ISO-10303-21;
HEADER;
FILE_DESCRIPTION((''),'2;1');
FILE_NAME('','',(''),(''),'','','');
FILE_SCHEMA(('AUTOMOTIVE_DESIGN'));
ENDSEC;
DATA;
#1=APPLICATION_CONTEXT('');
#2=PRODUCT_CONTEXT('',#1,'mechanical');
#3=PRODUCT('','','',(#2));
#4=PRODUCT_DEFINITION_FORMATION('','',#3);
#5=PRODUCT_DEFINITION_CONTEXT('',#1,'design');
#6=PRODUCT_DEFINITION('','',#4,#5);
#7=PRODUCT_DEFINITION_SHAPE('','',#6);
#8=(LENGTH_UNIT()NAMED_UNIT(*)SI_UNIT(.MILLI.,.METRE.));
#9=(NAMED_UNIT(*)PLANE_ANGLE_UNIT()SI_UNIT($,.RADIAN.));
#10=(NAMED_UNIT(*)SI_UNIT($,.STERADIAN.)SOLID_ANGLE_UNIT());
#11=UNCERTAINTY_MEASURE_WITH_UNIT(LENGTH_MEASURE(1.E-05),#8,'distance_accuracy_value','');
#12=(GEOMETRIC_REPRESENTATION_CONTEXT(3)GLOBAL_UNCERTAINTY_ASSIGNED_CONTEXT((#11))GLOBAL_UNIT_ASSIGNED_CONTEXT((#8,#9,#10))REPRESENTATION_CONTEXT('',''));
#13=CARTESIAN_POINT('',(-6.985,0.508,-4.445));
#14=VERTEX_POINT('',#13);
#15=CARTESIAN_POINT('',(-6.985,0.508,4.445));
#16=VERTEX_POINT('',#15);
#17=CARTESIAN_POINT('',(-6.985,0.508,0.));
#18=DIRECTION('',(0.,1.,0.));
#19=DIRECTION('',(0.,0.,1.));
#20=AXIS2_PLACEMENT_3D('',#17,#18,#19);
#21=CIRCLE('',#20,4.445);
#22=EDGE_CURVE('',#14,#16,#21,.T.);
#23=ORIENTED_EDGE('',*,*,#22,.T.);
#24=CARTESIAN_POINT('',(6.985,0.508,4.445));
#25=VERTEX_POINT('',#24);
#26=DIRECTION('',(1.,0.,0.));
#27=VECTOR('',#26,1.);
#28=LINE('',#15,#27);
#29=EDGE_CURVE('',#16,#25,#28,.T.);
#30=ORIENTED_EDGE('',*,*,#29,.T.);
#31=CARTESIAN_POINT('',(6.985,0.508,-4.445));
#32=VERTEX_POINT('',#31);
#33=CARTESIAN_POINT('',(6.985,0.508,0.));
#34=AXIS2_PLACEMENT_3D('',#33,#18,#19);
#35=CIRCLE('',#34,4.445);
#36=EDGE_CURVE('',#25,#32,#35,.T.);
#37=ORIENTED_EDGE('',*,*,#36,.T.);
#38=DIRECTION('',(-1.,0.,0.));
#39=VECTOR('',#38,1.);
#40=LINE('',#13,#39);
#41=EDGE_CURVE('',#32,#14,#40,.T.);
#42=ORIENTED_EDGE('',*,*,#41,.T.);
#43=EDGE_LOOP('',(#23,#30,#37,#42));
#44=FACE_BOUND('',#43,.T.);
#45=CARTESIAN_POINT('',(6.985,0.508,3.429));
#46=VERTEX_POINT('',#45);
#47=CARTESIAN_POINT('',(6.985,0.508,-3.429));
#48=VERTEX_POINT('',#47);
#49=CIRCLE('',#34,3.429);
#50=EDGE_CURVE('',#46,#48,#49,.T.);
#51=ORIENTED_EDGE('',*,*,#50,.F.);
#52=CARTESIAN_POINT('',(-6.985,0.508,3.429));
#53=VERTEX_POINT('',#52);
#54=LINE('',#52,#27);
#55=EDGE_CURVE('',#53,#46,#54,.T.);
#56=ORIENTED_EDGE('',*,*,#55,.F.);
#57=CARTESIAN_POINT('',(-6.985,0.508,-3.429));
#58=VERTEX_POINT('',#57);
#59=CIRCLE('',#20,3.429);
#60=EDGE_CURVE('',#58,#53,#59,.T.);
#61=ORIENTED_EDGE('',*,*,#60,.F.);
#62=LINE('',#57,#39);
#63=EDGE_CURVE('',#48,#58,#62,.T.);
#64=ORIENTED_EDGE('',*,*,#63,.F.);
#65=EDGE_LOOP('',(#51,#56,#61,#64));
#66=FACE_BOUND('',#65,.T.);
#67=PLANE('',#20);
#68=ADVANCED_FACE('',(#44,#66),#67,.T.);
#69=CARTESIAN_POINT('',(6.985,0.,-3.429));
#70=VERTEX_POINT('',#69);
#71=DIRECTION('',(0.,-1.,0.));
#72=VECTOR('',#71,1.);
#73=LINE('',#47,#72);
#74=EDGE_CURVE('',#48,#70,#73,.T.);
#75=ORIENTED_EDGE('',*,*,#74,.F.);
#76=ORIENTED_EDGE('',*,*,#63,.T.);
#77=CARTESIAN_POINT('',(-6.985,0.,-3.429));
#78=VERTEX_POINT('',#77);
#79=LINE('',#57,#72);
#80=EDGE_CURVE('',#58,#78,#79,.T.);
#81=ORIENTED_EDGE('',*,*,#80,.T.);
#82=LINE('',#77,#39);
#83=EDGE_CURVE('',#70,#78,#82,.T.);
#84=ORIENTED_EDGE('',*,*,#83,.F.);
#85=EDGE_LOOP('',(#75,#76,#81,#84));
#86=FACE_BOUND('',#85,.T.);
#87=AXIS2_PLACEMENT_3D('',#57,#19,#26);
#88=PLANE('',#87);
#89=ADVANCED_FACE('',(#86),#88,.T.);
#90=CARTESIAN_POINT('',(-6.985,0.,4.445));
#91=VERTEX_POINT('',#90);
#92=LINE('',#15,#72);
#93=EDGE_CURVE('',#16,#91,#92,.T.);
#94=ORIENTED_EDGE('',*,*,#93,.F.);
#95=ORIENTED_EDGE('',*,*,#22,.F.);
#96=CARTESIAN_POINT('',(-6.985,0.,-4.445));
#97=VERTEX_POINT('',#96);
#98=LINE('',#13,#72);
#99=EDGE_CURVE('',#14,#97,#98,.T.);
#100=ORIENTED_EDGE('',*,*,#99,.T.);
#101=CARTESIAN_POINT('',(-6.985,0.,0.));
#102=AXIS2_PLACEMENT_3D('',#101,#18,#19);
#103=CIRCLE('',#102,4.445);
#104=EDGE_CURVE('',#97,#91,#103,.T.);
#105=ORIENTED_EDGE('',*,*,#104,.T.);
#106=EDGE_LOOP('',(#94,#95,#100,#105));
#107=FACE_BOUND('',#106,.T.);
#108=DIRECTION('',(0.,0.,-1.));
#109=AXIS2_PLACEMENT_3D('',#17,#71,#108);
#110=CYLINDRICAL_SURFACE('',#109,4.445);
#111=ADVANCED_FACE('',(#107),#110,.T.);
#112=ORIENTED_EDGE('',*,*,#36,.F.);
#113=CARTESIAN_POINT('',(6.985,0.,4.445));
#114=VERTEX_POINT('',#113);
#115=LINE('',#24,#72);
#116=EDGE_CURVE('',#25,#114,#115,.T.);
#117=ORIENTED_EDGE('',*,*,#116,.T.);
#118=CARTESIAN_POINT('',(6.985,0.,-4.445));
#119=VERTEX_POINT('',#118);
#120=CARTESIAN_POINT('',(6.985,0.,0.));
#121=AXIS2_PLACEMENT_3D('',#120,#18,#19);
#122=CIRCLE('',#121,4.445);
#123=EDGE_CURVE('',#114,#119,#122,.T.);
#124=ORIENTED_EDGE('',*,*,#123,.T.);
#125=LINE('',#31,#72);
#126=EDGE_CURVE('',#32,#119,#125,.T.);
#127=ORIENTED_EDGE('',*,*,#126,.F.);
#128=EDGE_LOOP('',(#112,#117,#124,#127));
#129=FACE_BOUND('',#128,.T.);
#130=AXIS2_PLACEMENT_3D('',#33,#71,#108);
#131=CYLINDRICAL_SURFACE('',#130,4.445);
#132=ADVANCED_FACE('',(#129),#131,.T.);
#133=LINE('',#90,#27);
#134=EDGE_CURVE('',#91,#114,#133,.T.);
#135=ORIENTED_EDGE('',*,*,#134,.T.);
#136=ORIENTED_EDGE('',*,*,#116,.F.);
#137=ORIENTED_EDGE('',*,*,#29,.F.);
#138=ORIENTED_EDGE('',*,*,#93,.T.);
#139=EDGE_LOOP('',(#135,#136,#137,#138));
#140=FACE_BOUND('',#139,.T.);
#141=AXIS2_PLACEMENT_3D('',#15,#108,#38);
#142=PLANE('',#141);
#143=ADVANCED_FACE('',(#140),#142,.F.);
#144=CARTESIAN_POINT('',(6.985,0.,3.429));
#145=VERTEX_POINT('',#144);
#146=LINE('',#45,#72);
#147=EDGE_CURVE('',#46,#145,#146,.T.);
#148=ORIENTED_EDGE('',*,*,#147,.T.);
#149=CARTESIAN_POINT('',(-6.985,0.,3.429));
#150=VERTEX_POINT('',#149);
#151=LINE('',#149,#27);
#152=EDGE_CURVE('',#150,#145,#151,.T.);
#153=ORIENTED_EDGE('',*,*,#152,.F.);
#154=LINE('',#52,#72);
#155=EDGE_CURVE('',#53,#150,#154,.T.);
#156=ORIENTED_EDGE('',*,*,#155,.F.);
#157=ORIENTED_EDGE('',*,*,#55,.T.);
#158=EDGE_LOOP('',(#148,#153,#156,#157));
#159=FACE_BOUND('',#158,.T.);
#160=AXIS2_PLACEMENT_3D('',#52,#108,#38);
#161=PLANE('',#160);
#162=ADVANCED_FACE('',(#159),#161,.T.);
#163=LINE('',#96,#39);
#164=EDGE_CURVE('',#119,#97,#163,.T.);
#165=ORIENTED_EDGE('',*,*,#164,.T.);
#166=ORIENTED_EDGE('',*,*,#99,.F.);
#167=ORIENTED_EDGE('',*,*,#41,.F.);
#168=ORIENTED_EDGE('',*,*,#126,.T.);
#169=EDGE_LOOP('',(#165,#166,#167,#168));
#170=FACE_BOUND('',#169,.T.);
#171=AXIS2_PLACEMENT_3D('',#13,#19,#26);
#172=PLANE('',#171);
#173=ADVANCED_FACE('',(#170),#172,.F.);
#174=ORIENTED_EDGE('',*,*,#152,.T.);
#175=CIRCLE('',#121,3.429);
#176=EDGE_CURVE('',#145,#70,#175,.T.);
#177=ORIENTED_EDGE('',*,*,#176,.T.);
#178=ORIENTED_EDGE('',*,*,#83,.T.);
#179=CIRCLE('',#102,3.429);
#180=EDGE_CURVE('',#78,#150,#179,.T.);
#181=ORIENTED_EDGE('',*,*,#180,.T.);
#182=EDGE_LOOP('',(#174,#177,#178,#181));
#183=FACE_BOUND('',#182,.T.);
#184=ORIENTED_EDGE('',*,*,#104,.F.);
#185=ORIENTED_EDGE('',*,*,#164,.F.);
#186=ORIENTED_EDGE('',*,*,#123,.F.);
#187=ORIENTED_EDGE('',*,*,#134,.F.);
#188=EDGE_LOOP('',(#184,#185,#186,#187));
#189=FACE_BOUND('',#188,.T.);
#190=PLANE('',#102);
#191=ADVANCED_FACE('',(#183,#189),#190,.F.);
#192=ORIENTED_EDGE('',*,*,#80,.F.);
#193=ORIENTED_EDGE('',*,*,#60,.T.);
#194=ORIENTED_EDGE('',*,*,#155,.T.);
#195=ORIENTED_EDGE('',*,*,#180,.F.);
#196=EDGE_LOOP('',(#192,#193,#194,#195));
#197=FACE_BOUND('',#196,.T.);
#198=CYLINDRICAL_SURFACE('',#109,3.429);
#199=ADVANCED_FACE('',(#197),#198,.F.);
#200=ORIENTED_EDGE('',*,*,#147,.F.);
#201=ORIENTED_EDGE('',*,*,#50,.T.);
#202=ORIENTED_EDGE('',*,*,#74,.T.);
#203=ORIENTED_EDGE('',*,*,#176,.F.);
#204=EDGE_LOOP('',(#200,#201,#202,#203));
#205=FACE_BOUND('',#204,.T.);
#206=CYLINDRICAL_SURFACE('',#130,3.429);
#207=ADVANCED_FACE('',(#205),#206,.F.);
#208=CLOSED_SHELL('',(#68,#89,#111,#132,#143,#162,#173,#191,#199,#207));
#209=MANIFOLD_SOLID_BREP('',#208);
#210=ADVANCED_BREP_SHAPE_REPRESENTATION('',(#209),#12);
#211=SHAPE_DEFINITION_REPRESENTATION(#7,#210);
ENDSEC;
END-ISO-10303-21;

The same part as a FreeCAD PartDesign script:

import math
import FreeCAD as App
import Part
import Sketcher
from FreeCAD import Vector
Q = App.Units.Quantity

doc = App.newDocument("Part")
params = doc.addObject("Spreadsheet::Sheet", "Params")
for row, (alias, value) in enumerate([
    ("sketch1_radius", "0.175 in"),
    ("sketch1_radius2", "0.135 in"),
    ("sketch1_width", "0.55 in"),
    ("pad1_length", "0.02 in"),
], start=1):
    params.set(f"A{row}", alias)
    params.set(f"B{row}", "=" + value)
    params.setAlias(f"B{row}", alias)

body = doc.addObject("PartDesign::Body", "Body")

# Sketch on XZ plane
sketch1 = body.newObject("Sketcher::SketchObject", "Sketch")
sketch1.AttachmentSupport = (doc.getObject("XZ_Plane"), [""])
sketch1.MapMode = "FlatFace"
sketch1.addGeometry([
    Part.LineSegment(Vector(6.985, -4.445, 0), Vector(-6.985, -4.445, 0)),  # 0
    Part.ArcOfCircle(Part.Circle(Vector(-6.985, 0, 0), Vector(0, 0, 1), 4.445), math.radians(90), math.radians(270)),  # 1
    Part.LineSegment(Vector(-6.985, 4.445, 0), Vector(6.985, 4.445, 0)),  # 2
    Part.ArcOfCircle(Part.Circle(Vector(6.985, 0, 0), Vector(0, 0, 1), 4.445), math.radians(-90), math.radians(90)),  # 3
    Part.LineSegment(Vector(-6.985, -3.429, 0), Vector(6.985, -3.429, 0)),  # 4
    Part.ArcOfCircle(Part.Circle(Vector(6.985, 0, 0), Vector(0, 0, 1), 3.429), math.radians(-90), math.radians(90)),  # 5
    Part.LineSegment(Vector(6.985, 3.429, 0), Vector(-6.985, 3.429, 0)),  # 6
    Part.ArcOfCircle(Part.Circle(Vector(-6.985, 0, 0), Vector(0, 0, 1), 3.429), math.radians(90), math.radians(270)),  # 7
], False)
sketch1.addConstraint([
    Sketcher.Constraint("Tangent", 0, 2, 1, 2),
    Sketcher.Constraint("Tangent", 1, 1, 2, 1),
    Sketcher.Constraint("Tangent", 2, 2, 3, 2),
    Sketcher.Constraint("Tangent", 3, 1, 0, 1),
    Sketcher.Constraint("Tangent", 4, 2, 5, 1),
    Sketcher.Constraint("Tangent", 5, 2, 6, 1),
    Sketcher.Constraint("Tangent", 6, 2, 7, 1),
    Sketcher.Constraint("Tangent", 7, 2, 4, 1),
    Sketcher.Constraint("Horizontal", 0),
    Sketcher.Constraint("Horizontal", 2),
    Sketcher.Constraint("Horizontal", 4),
    Sketcher.Constraint("Horizontal", 6),
    Sketcher.Constraint("Coincident", 5, 3, 3, 3),
    Sketcher.Constraint("Symmetric", 1, 3, 3, 3, -1, 1),
    Sketcher.Constraint("Vertical", 7, 3, 0, 2),
    Sketcher.Constraint("Radius", 1, Q("0.175 in")),
    Sketcher.Constraint("Radius", 5, Q("0.135 in")),
    Sketcher.Constraint("DistanceX", 0, 2, 0, 1, Q("0.55 in")),
])
sketch1.setExpression("Constraints[15]", "Params.sketch1_radius")
sketch1.setExpression("Constraints[16]", "Params.sketch1_radius2")
sketch1.setExpression("Constraints[17]", "Params.sketch1_width")
pad1 = body.newObject("PartDesign::Pad", "Pad")
pad1.Profile = sketch1
pad1.setExpression("Length", "Params.pad1_length")
pad1.Reversed = True

doc.recompute()
